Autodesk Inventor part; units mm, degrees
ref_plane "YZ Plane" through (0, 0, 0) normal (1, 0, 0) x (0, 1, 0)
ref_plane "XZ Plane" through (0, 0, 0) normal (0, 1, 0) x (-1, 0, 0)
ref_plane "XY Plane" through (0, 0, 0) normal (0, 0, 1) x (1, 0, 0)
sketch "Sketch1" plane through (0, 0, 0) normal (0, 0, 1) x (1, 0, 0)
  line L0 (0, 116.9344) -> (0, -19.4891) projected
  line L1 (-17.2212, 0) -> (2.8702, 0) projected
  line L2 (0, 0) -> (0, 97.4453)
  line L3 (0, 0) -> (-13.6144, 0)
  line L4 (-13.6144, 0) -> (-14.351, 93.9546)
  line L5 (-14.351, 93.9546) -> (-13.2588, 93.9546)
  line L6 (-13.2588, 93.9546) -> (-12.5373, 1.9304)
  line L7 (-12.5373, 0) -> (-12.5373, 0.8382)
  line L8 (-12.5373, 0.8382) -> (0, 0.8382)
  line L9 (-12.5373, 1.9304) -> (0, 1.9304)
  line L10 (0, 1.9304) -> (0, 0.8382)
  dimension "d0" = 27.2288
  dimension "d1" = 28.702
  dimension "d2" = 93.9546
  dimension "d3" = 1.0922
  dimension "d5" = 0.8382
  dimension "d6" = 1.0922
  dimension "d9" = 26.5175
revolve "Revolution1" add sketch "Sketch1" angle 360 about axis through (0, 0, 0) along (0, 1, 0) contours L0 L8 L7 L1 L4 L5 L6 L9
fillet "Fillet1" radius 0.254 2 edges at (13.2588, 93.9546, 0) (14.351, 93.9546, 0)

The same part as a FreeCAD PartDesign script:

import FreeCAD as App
import Part
import Sketcher

V = App.Vector
Q = App.Units.Quantity


def edges_at(feature, points):
    """Names of the edges that pass closest to the given points."""
    edges = feature.Shape.Edges
    near = lambda p: min(range(len(edges)), key=lambda i: edges[i].distToShape(Part.Vertex(*p))[0])
    return sorted({f"Edge{near(p) + 1}" for p in points})

doc = App.newDocument("Part")
body = doc.addObject("PartDesign::Body", "Body")

sketch1 = doc.addObject("Sketcher::SketchObject", "Sketch")
body.addObject(sketch1)
sketch1.AttachmentSupport = (doc.XY_Plane, [""])
sketch1.MapMode = "FlatFace"
sketch1.addGeometry([
    Part.LineSegment(V(0, 0.8, 0), V(0, 1.9, 0)),
    Part.LineSegment(V(0, 1.9, 0), V(-12.5, 1.9, 0)),
    Part.LineSegment(V(-12.5, 1.9, 0), V(-13.3, 94, 0)),
    Part.LineSegment(V(-13.3, 94, 0), V(-14.4, 94, 0)),
    Part.LineSegment(V(-14.4, 94, 0), V(-13.6, 0, 0)),
    Part.LineSegment(V(-13.6, 0, 0), V(-12.5, 0, 0)),
    Part.LineSegment(V(-12.5, 0, 0), V(-12.5, 0.8, 0)),
    Part.LineSegment(V(-12.5, 0.8, 0), V(0, 0.8, 0)),
], False)
sketch1.addConstraint([
    Sketcher.Constraint("Coincident", 0, 2, 1, 1),
    Sketcher.Constraint("Coincident", 1, 2, 2, 1),
    Sketcher.Constraint("Coincident", 2, 2, 3, 1),
    Sketcher.Constraint("Coincident", 3, 2, 4, 1),
    Sketcher.Constraint("Coincident", 4, 2, 5, 1),
    Sketcher.Constraint("Coincident", 5, 2, 6, 1),
    Sketcher.Constraint("Coincident", 6, 2, 7, 1),
    Sketcher.Constraint("Coincident", 7, 2, 0, 1),
    Sketcher.Constraint("Vertical", 0),
    Sketcher.Constraint("Horizontal", 1),
    Sketcher.Constraint("Horizontal", 3),
    Sketcher.Constraint("Horizontal", 5),
    Sketcher.Constraint("Vertical", 6),
    Sketcher.Constraint("Horizontal", 7),
    Sketcher.Constraint("PointOnObject", 0, 2, -2),
    Sketcher.Constraint("PointOnObject", 4, 2, -1),
    Sketcher.Constraint("Parallel", 2, 4),
    Sketcher.Constraint("Vertical", 1, 2, 5, 2),
    Sketcher.Constraint("Equal", 3, 0),
    Sketcher.Constraint("DistanceX", 3, 2, 3, 1, Q("0.043 in")),
    Sketcher.Constraint("DistanceY", 6, 1, 6, 2, Q("0.033 in")),
    Sketcher.Constraint("DistanceY", -1, 1, 2, 2, Q("3.699 in")),
    Sketcher.Constraint("Angle", 2, Q("90.4492 deg")),
    Sketcher.Constraint("DistanceX", 1, 2, 1, 1, Q("0.4936 in")),
])
revolution = doc.addObject("PartDesign::Revolution", "Revolution")
body.addObject(revolution)
revolution.Profile = sketch1
revolution.ReferenceAxis = (sketch1, ["V_Axis"])
revolution.Angle = 360
doc.recompute()

fillet = doc.addObject("PartDesign::Fillet", "Fillet")
body.addObject(fillet)
fillet.Base = (revolution, edges_at(revolution, [(13.259, 93.955, 0), (14.351, 93.955, 0)]))
fillet.Radius = Q("0.01 in")

doc.recompute()
